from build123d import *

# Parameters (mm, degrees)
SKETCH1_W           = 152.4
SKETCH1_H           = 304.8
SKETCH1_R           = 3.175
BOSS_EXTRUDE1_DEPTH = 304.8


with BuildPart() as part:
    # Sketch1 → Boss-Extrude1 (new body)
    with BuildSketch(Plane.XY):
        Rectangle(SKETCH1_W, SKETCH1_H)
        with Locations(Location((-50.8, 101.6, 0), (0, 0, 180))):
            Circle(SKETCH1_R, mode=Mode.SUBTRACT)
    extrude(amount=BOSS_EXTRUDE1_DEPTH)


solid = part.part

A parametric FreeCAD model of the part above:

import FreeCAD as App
import Part
import Sketcher

V = App.Vector
Q = App.Units.Quantity

doc = App.newDocument("Part")
params = doc.addObject("Spreadsheet::Sheet", "Params")
for row, (alias, value) in enumerate([
    ("sketch1_diameter", "0.25 in"),
    ("sketch1_width", "6 in"),
    ("sketch1_height", "12 in"),
    ("pad1_length", "12 in"),
], start=1):
    params.set(f"A{row}", alias)
    params.set(f"B{row}", "=" + value)
    params.setAlias(f"B{row}", alias)

body = doc.addObject("PartDesign::Body", "Body")

# Sketch on XY plane
sketch1 = body.newObject("Sketcher::SketchObject", "Sketch")
sketch1.AttachmentSupport = (doc.getObject("XY_Plane"), [""])
sketch1.MapMode = "FlatFace"
sketch1.addGeometry(Part.LineSegment(V(-76.2, 152.4, 0), V(-76.2, -152.4, 0)), False)
sketch1.addGeometry(Part.LineSegment(V(-76.2, -152.4, 0), V(76.2, -152.4, 0)), False)
sketch1.addGeometry(Part.LineSegment(V(76.2, -152.4, 0), V(76.2, 152.4, 0)), False)
sketch1.addGeometry(Part.LineSegment(V(76.2, 152.4, 0), V(-76.2, 152.4, 0)), False)
sketch1.addGeometry(Part.Circle(V(-50.8, 101.6, 0), V(0, 0, 1), 3.175), False)
sketch1.addConstraint(Sketcher.Constraint("Coincident", 0, 2, 1, 1))
sketch1.addConstraint(Sketcher.Constraint("Coincident", 1, 2, 2, 1))
sketch1.addConstraint(Sketcher.Constraint("Coincident", 2, 2, 3, 1))
sketch1.addConstraint(Sketcher.Constraint("Coincident", 3, 2, 0, 1))
sketch1.addConstraint(Sketcher.Constraint("Vertical", 0))
sketch1.addConstraint(Sketcher.Constraint("Horizontal", 1))
sketch1.addConstraint(Sketcher.Constraint("Vertical", 2))
sketch1.addConstraint(Sketcher.Constraint("Horizontal", 3))
sketch1.addConstraint(Sketcher.Constraint("Symmetric", 0, 2, 2, 2, -1, 1))
sketch1.addConstraint(Sketcher.Constraint("Diameter", 4, Q("0.25 in")))
sketch1.addConstraint(Sketcher.Constraint("DistanceX", 1, 1, 1, 2, Q("6 in")))
sketch1.addConstraint(Sketcher.Constraint("DistanceY", 0, 2, 0, 1, Q("12 in")))
sketch1.addConstraint(Sketcher.Constraint("DistanceX", 4, 3, -1, 1, Q("2 in")))
sketch1.addConstraint(Sketcher.Constraint("DistanceY", -1, 1, 4, 3, Q("4 in")))
sketch1.setExpression("Constraints[9]", "Params.sketch1_diameter")
sketch1.setExpression("Constraints[10]", "Params.sketch1_width")
sketch1.setExpression("Constraints[11]", "Params.sketch1_height")
pad1 = body.newObject("PartDesign::Pad", "Pad")
pad1.Profile = sketch1
pad1.setExpression("Length", "Params.pad1_length")

doc.recompute()
